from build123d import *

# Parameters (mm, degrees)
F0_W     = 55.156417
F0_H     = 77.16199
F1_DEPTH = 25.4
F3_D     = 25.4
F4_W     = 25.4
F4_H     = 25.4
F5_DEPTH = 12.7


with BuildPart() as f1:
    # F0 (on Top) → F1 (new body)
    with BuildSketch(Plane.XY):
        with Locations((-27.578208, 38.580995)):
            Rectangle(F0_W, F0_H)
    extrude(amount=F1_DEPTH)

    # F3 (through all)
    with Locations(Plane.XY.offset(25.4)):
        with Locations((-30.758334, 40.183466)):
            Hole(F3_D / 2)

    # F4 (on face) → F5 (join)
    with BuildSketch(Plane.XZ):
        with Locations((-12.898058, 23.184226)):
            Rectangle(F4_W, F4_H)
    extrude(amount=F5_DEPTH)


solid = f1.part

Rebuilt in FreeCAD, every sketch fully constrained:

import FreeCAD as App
import Part
import Sketcher

V = App.Vector
Q = App.Units.Quantity

doc = App.newDocument("Part")
body = doc.addObject("PartDesign::Body", "Body")

# Sketch on XY plane
sketch1 = body.newObject("Sketcher::SketchObject", "Sketch")
sketch1.AttachmentSupport = (doc.getObject("XY_Plane"), [""])
sketch1.MapMode = "FlatFace"
sketch1.addGeometry([
    Part.LineSegment(V(-55.156416, 77.16199, 0), V(-55.156416, 0, 0)),
    Part.LineSegment(V(-55.156416, 0, 0), V(0, 0, 0)),
    Part.LineSegment(V(0, 0, 0), V(0, 77.16199, 0)),
    Part.LineSegment(V(0, 77.16199, 0), V(-55.156416, 77.16199, 0)),
], False)
sketch1.addConstraint([
    Sketcher.Constraint("Coincident", 0, 2, 1, 1),
    Sketcher.Constraint("Coincident", 1, 2, 2, 1),
    Sketcher.Constraint("Coincident", 2, 2, 3, 1),
    Sketcher.Constraint("Coincident", 3, 2, 0, 1),
    Sketcher.Constraint("Vertical", 0),
    Sketcher.Constraint("Horizontal", 1),
    Sketcher.Constraint("Vertical", 2),
    Sketcher.Constraint("Horizontal", 3),
    Sketcher.Constraint("Coincident", 1, 2, -1, 1),
    Sketcher.Constraint("DistanceY", 0, 2, 0, 1, 77.16199),
    Sketcher.Constraint("DistanceX", 1, 1, 1, 2, 55.156417),
])
pad1 = body.newObject("PartDesign::Pad", "Pad")
pad1.Profile = sketch1
pad1.Length = Q("1 in")

# Sketch on XY plane
sketch2 = body.newObject("Sketcher::SketchObject", "Sketch001")
sketch2.AttachmentSupport = (doc.getObject("XY_Plane"), [""])
sketch2.MapMode = "FlatFace"
sketch2.AttachmentOffset = App.Placement(V(0, 0, 1 * 25.4), App.Rotation())
sketch2.addGeometry(Part.Circle(V(-30.758334, 40.183466, 0), V(0, 0, 1), 12.7), False)
sketch2.addConstraint([
    Sketcher.Constraint("Diameter", 0, Q("1 in")),
    Sketcher.Constraint("DistanceX", 0, 3, -1, 1, 30.758334),
    Sketcher.Constraint("DistanceY", -1, 1, 0, 3, 40.183466),
])
doc.recompute()
hole = body.newObject("PartDesign::Hole", "Hole")
hole.Profile = sketch2
hole.ThreadType = "None"
hole.Diameter = Q("1 in")
hole.DepthType = "ThroughAll"

# Sketch on XZ plane
sketch3 = body.newObject("Sketcher::SketchObject", "Sketch002")
sketch3.AttachmentSupport = (doc.getObject("XZ_Plane"), [""])
sketch3.MapMode = "FlatFace"
sketch3.addGeometry([
    Part.LineSegment(V(-25.598058, 35.884226, 0), V(-25.598058, 10.484226, 0)),
    Part.LineSegment(V(-25.598058, 10.484226, 0), V(-0.198058, 10.484226, 0)),
    Part.LineSegment(V(-0.198058, 10.484226, 0), V(-0.198058, 35.884226, 0)),
    Part.LineSegment(V(-0.198058, 35.884226, 0), V(-25.598058, 35.884226, 0)),
], False)
sketch3.addConstraint([
    Sketcher.Constraint("Coincident", 0, 2, 1, 1),
    Sketcher.Constraint("Coincident", 1, 2, 2, 1),
    Sketcher.Constraint("Coincident", 2, 2, 3, 1),
    Sketcher.Constraint("Coincident", 3, 2, 0, 1),
    Sketcher.Constraint("Vertical", 0),
    Sketcher.Constraint("Horizontal", 1),
    Sketcher.Constraint("Vertical", 2),
    Sketcher.Constraint("Horizontal", 3),
    Sketcher.Constraint("Equal", 3, 0),
    Sketcher.Constraint("DistanceX", 1, 1, 1, 2, Q("1 in")),
    Sketcher.Constraint("DistanceX", 0, 2, -1, 1, 25.598058),
    Sketcher.Constraint("DistanceY", -1, 1, 0, 2, 10.484226),
])
pad2 = body.newObject("PartDesign::Pad", "Pad001")
pad2.Profile = sketch3
pad2.Length = Q("0.5 in")

doc.recompute()
